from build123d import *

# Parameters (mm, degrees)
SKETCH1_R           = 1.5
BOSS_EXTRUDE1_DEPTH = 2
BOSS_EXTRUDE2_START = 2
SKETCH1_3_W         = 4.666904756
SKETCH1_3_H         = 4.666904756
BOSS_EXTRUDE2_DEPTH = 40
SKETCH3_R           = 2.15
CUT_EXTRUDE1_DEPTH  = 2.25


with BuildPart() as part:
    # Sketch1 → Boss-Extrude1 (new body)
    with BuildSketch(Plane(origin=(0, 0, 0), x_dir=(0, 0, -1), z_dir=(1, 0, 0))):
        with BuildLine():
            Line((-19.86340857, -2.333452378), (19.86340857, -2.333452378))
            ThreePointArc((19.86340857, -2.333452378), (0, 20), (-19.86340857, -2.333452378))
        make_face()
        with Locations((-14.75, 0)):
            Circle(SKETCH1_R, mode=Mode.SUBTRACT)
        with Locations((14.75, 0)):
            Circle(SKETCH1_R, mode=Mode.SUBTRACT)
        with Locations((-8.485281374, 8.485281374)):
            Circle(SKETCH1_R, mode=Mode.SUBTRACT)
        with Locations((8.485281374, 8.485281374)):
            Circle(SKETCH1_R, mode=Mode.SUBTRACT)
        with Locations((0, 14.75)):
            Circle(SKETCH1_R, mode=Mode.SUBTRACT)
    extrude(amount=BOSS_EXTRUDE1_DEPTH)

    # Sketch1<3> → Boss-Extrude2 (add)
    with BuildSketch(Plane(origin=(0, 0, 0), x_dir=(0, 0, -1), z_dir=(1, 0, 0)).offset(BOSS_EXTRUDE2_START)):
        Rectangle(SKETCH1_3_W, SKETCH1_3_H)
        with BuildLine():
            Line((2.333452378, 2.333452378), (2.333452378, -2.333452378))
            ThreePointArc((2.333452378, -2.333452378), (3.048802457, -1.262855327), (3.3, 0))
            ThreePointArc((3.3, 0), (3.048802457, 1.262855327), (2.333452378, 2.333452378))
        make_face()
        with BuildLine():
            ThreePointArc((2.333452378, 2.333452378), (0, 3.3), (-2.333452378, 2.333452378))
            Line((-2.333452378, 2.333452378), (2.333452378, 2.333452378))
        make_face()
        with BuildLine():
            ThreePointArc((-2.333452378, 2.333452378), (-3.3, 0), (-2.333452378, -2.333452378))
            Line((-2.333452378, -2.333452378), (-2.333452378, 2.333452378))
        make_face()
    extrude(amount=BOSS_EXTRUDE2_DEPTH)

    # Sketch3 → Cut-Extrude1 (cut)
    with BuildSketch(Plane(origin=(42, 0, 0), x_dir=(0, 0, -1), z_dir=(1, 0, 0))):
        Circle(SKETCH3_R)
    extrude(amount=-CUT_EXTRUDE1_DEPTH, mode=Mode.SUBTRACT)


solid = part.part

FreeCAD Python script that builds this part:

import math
import FreeCAD as App
import Part
import Sketcher
from FreeCAD import Vector
Q = App.Units.Quantity

doc = App.newDocument("Part")
body = doc.addObject("PartDesign::Body", "Body")

sketch1 = doc.addObject("Sketcher::SketchObject", "Sketch")
body.addObject(sketch1)
sketch1.AttachmentSupport = (doc.YZ_Plane, [""])
sketch1.MapMode = "FlatFace"
sketch1.addGeometry([
    Part.LineSegment(Vector(-2.333452, 19.863409, 0), Vector(-2.333452, -19.863409, 0)),
    Part.ArcOfCircle(Part.Circle(Vector(0, 0, 0), Vector(0, 0, 1), 20), math.radians(-96.700109), math.radians(96.700109)),
    Part.Circle(Vector(0, 14.75, 0), Vector(0, 0, 1), 1.5),
    Part.Circle(Vector(0, -14.75, 0), Vector(0, 0, 1), 1.5),
    Part.Circle(Vector(8.485281, 8.485281, 0), Vector(0, 0, 1), 1.5),
    Part.Circle(Vector(8.485281, -8.485281, 0), Vector(0, 0, 1), 1.5),
    Part.Circle(Vector(14.75, 0, 0), Vector(0, 0, 1), 1.5),
], False)
sketch1.addConstraint([
    Sketcher.Constraint("Coincident", 0, 1, 1, 2),
    Sketcher.Constraint("Coincident", 1, 1, 0, 2),
    Sketcher.Constraint("Vertical", 0),
    Sketcher.Constraint("Coincident", 1, 3, -1, 1),
    Sketcher.Constraint("Equal", 2, 3),
    Sketcher.Constraint("Equal", 3, 4),
    Sketcher.Constraint("Equal", 4, 5),
    Sketcher.Constraint("Equal", 5, 6),
    Sketcher.Constraint("Symmetric", 2, 3, 3, 3, -1, 1),
    Sketcher.Constraint("Symmetric", 4, 3, 5, 3, -1),
    Sketcher.Constraint("PointOnObject", 2, 3, -2),
    Sketcher.Constraint("PointOnObject", 6, 3, -1),
    Sketcher.Constraint("Diameter", 2, Q("3 mm")),
    Sketcher.Constraint("Radius", 1, Q("20 mm")),
    Sketcher.Constraint("DistanceY", 3, 3, 2, 3, Q("29.5 mm")),
    Sketcher.Constraint("DistanceX", -1, 1, 6, 3, Q("14.75 mm")),
    Sketcher.Constraint("DistanceY", 0, 2, 0, 1, Q("39.726817 mm")),
    Sketcher.Constraint("DistanceX", -1, 1, 4, 3, Q("8.485281 mm")),
    Sketcher.Constraint("DistanceY", -1, 1, 4, 3, Q("8.485281 mm")),
])
pad1 = doc.addObject("PartDesign::Pad", "Pad")
body.addObject(pad1)
pad1.Profile = sketch1
pad1.Length = 2

sketch2 = doc.addObject("Sketcher::SketchObject", "Sketch001")
body.addObject(sketch2)
sketch2.AttachmentSupport = (doc.YZ_Plane, [""])
sketch2.MapMode = "FlatFace"
sketch2.AttachmentOffset = App.Placement(Vector(0, 0, 2), App.Rotation())
sketch2.addGeometry([
    Part.LineSegment(Vector(-2.333452, 2.333452, 0), Vector(-2.333452, -2.333452, 0)),
    Part.ArcOfCircle(Part.Circle(Vector(0, 0, 0), Vector(0, 0, 1), 3.3), math.radians(-135), math.radians(-90)),
    Part.ArcOfCircle(Part.Circle(Vector(0, 0, 0), Vector(0, 0, 1), 3.3), math.radians(-90), math.radians(-45)),
    Part.ArcOfCircle(Part.Circle(Vector(0, 0, 0), Vector(0, 0, 1), 3.3), math.radians(-45), math.radians(45)),
    Part.ArcOfCircle(Part.Circle(Vector(0, 0, 0), Vector(0, 0, 1), 3.3), math.radians(45), math.radians(135)),
], False)
sketch2.addConstraint([
    Sketcher.Constraint("Coincident", 0, 2, 1, 1),
    Sketcher.Constraint("Tangent", 1, 2, 2, 1),
    Sketcher.Constraint("Tangent", 2, 2, 3, 1),
    Sketcher.Constraint("Tangent", 3, 2, 4, 1),
    Sketcher.Constraint("Coincident", 4, 2, 0, 1),
    Sketcher.Constraint("Vertical", 0),
    Sketcher.Constraint("Coincident", 1, 3, -1, 1),
    Sketcher.Constraint("Coincident", 3, 3, -1, 1),
    Sketcher.Constraint("Equal", 3, 4),
    Sketcher.Constraint("PointOnObject", 1, 2, -2),
    Sketcher.Constraint("Horizontal", 0, 2, 2, 2),
    Sketcher.Constraint("Horizontal", 3, 2, 4, 2),
    Sketcher.Constraint("Radius", 1, Q("3.3 mm")),
    Sketcher.Constraint("DistanceY", 0, 2, 0, 1, Q("4.666905 mm")),
])
pad2 = doc.addObject("PartDesign::Pad", "Pad001")
body.addObject(pad2)
pad2.Profile = sketch2
pad2.Length = 40

sketch3 = doc.addObject("Sketcher::SketchObject", "Sketch002")
body.addObject(sketch3)
sketch3.AttachmentSupport = (doc.YZ_Plane, [""])
sketch3.MapMode = "FlatFace"
sketch3.AttachmentOffset = App.Placement(Vector(0, 0, 42), App.Rotation())
sketch3.addGeometry(Part.Circle(Vector(0, 0, 0), Vector(0, 0, 1), 2.15), False)
sketch3.addConstraint([
    Sketcher.Constraint("Coincident", 0, 3, -1, 1),
    Sketcher.Constraint("Diameter", 0, Q("4.3 mm")),
])
pocket1 = doc.addObject("PartDesign::Pocket", "Pocket")
body.addObject(pocket1)
pocket1.Profile = sketch3
pocket1.Length = 2.25

doc.recompute()
